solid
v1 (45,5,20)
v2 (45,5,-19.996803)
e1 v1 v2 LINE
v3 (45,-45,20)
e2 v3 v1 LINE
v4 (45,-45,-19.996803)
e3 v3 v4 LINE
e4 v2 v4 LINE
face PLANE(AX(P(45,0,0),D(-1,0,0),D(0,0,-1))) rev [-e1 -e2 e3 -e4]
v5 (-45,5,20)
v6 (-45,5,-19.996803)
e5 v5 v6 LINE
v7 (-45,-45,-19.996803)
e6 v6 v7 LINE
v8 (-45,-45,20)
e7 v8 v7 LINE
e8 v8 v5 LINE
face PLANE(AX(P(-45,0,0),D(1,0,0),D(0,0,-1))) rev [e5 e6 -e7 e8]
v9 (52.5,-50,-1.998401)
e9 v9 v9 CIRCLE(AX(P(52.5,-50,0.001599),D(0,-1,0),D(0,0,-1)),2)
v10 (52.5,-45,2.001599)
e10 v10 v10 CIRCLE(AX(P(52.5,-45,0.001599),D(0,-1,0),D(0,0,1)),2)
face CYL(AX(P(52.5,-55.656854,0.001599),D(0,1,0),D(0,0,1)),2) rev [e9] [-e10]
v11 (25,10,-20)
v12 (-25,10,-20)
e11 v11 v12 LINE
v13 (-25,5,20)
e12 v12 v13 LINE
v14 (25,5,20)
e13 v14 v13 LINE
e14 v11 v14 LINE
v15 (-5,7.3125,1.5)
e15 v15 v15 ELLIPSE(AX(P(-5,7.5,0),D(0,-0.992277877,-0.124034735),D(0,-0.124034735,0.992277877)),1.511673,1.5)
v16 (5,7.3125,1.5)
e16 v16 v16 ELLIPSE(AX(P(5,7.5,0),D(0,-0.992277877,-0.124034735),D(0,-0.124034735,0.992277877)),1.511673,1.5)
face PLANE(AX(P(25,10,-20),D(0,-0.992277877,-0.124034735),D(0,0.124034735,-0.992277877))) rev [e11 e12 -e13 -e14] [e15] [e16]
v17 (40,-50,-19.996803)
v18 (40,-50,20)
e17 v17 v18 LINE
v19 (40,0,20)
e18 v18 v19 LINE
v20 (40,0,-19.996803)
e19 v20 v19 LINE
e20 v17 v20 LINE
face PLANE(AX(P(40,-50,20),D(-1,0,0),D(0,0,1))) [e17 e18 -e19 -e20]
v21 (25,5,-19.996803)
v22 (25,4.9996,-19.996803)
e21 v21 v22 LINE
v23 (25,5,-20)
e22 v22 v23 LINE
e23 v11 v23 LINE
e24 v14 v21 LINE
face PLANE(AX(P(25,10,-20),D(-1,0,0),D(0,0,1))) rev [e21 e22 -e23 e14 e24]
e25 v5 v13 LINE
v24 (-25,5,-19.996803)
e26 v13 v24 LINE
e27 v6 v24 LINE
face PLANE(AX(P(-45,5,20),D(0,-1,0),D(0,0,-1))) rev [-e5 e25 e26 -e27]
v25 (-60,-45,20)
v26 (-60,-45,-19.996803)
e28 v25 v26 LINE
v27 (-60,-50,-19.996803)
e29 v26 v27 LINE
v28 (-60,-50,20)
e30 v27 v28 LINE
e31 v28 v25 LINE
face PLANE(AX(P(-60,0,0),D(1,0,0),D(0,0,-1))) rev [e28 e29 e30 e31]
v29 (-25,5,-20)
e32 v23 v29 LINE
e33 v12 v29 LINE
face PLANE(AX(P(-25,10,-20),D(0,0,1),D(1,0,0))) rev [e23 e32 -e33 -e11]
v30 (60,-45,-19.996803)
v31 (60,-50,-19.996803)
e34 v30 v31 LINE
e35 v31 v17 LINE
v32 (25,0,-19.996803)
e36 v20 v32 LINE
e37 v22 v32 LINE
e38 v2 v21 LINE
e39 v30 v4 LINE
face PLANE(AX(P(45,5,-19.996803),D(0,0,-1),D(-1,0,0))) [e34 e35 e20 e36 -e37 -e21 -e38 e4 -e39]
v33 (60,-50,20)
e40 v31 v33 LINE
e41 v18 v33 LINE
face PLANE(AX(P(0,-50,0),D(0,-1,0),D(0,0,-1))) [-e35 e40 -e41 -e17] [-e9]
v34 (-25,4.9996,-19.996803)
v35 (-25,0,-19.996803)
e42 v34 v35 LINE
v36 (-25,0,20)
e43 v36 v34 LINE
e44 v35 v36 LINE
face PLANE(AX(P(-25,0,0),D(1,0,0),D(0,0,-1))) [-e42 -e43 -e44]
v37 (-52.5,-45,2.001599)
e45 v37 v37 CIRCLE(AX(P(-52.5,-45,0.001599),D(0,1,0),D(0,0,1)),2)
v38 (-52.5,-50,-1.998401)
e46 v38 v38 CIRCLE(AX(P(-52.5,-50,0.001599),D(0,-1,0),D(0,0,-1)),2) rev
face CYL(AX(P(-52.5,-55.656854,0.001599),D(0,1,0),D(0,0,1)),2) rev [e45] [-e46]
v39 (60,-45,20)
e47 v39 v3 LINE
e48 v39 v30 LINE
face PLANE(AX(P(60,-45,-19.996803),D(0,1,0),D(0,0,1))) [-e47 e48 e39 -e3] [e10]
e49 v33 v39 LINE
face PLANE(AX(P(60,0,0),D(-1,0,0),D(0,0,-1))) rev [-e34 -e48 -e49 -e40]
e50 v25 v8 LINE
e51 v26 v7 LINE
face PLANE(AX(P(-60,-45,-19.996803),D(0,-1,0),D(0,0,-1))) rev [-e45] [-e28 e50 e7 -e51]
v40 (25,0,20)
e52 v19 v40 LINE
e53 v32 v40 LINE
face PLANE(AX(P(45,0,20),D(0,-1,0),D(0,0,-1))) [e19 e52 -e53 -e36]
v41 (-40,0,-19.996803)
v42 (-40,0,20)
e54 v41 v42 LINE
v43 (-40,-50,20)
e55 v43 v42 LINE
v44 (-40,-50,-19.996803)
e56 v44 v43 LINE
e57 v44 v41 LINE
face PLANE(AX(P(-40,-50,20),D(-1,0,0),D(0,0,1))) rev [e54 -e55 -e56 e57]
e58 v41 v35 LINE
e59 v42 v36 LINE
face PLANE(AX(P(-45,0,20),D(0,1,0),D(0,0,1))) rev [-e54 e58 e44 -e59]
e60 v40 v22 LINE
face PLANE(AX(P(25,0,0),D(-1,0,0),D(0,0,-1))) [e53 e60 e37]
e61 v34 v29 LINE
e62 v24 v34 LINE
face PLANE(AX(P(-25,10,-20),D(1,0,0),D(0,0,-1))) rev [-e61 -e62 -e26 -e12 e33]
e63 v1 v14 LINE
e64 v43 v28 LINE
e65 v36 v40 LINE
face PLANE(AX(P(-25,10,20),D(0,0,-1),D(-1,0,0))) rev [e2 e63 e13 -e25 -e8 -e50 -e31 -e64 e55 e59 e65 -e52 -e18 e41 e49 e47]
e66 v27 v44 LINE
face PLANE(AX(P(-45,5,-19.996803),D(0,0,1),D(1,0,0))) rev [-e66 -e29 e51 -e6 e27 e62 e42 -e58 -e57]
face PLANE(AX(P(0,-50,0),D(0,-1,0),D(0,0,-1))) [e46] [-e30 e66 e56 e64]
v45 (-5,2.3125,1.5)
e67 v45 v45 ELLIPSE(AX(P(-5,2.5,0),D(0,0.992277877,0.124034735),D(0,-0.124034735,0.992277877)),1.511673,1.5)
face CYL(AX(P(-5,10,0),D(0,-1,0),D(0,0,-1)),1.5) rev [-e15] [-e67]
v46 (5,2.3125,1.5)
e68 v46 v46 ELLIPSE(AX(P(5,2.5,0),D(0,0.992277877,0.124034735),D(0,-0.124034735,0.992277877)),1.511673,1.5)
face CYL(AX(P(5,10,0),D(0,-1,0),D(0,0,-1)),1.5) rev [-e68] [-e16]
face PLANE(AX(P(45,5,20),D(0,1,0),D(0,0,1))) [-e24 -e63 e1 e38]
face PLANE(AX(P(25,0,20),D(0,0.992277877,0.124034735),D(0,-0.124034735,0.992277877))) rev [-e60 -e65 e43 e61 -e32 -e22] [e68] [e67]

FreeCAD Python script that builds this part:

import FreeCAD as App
import Part
import Sketcher
from FreeCAD import Vector


def add_polygon(sketch, points):
    """Adds a closed chain of lines whose ends are joined by coincident constraints."""
    first, n = sketch.GeometryCount, len(points)
    for a, b in zip(points, points[1:] + points[:1]):
        sketch.addGeometry(Part.LineSegment(App.Vector(*a, 0), App.Vector(*b, 0)), False)
    for i in range(n):
        sketch.addConstraint(Sketcher.Constraint("Coincident", first + i, 2, first + (i + 1) % n, 1))

doc = App.newDocument("Part")
body = doc.addObject("PartDesign::Body", "Body")

sketch1 = doc.addObject("Sketcher::SketchObject", "Sketch")
body.addObject(sketch1)
sketch1.AttachmentSupport = (doc.XZ_Plane, [""])
sketch1.MapMode = "FlatFace"
add_polygon(sketch1, [(-25, -20), (-25, 20), (25, 20), (25, -20)])
sketch1.addGeometry(Part.Circle(Vector(-5, 0, 0), Vector(0, 0, 1), 1.5), False)
sketch1.addGeometry(Part.Circle(Vector(5, 0, 0), Vector(0, 0, 1), 1.5), False)
sketch1.addConstraint([
    Sketcher.Constraint("Vertical", 0),
    Sketcher.Constraint("Horizontal", 1),
    Sketcher.Constraint("Vertical", 2),
    Sketcher.Constraint("Horizontal", 3),
    Sketcher.Constraint("Equal", 4, 5),
    Sketcher.Constraint("Symmetric", 4, 3, 5, 3, -1, 1),
    Sketcher.Constraint("Symmetric", 0, 2, 2, 2, -1, 1),
    Sketcher.Constraint("PointOnObject", 4, 3, -1),
    Sketcher.Constraint("Diameter", 4, 3.0),
    Sketcher.Constraint("DistanceX", 1, 1, 1, 2, 50.0),
    Sketcher.Constraint("DistanceY", 0, 1, 0, 2, 40.0),
    Sketcher.Constraint("DistanceX", 4, 3, -1, 1, 5.0),
])
pad1 = doc.addObject("PartDesign::Pad", "Pad")
body.addObject(pad1)
pad1.Profile = sketch1
pad1.Length = 10
pad1.Reversed = True

sketch2 = doc.addObject("Sketcher::SketchObject", "Sketch001")
body.addObject(sketch2)
sketch2.AttachmentSupport = (doc.YZ_Plane, [""])
sketch2.MapMode = "FlatFace"
sketch2.AttachmentOffset = App.Placement(Vector(0, 0, -25), App.Rotation())
add_polygon(sketch2, [(10, -20), (5, 20), (10, 20)])
add_polygon(sketch2, [(0, 20), (5, -20), (0, -20)])
sketch2.addConstraint([
    Sketcher.Constraint("Horizontal", 1),
    Sketcher.Constraint("Vertical", 2),
    Sketcher.Constraint("Horizontal", 4),
    Sketcher.Constraint("Vertical", 5),
    Sketcher.Constraint("Symmetric", 4, 2, 5, 2, -1, 1),
    Sketcher.Constraint("Symmetric", 0, 2, 3, 2, -1),
    Sketcher.Constraint("Parallel", 0, 3),
    Sketcher.Constraint("Horizontal", 2, 2, 3, 2),
    Sketcher.Constraint("DistanceX", 1, 1, 1, 2, 5.0),
    Sketcher.Constraint("DistanceY", 2, 2, 2, 1, 40.0),
])
pocket1 = doc.addObject("PartDesign::Pocket", "Pocket")
body.addObject(pocket1)
pocket1.Profile = sketch2
pocket1.Length = 50
pocket1.Reversed = True

sketch3 = doc.addObject("Sketcher::SketchObject", "Sketch002")
body.addObject(sketch3)
sketch3.AttachmentSupport = (doc.YZ_Plane, [""])
sketch3.MapMode = "FlatFace"
sketch3.AttachmentOffset = App.Placement(Vector(0, 0, -25), App.Rotation())
add_polygon(sketch3, [(5, -20), (0, -20), (0, 20), (5, 20)])
sketch3.addConstraint([
    Sketcher.Constraint("Horizontal", 0),
    Sketcher.Constraint("Vertical", 1),
    Sketcher.Constraint("Horizontal", 2),
    Sketcher.Constraint("Vertical", 3),
    Sketcher.Constraint("PointOnObject", 0, 2, -2),
    Sketcher.Constraint("DistanceX", 0, 2, 0, 1, 5.0),
    Sketcher.Constraint("DistanceY", -1, 1, 1, 2, 20.0),
    Sketcher.Constraint("DistanceY", 1, 1, 1, 2, 39.996803),
])
pad2 = doc.addObject("PartDesign::Pad", "Pad001")
body.addObject(pad2)
pad2.Profile = sketch3
pad2.Length = 20
pad2.Reversed = True

sketch4 = doc.addObject("Sketcher::SketchObject", "Sketch003")
body.addObject(sketch4)
sketch4.AttachmentSupport = (doc.XZ_Plane, [""])
sketch4.MapMode = "FlatFace"
add_polygon(sketch4, [(-45, 20), (-45, -20), (-40, -20), (-40, 20)])
sketch4.addConstraint([
    Sketcher.Constraint("Vertical", 0),
    Sketcher.Constraint("Horizontal", 1),
    Sketcher.Constraint("Vertical", 2),
    Sketcher.Constraint("Horizontal", 3),
    Sketcher.Constraint("DistanceX", 1, 1, 1, 2, 5.0),
    Sketcher.Constraint("DistanceX", 0, 2, -1, 1, 45.0),
    Sketcher.Constraint("DistanceY", -1, 1, 2, 2, 20.0),
    Sketcher.Constraint("DistanceY", 0, 2, 0, 1, 39.996803),
])
pad3 = doc.addObject("PartDesign::Pad", "Pad002")
body.addObject(pad3)
pad3.Profile = sketch4
pad3.Length = 50

sketch5 = doc.addObject("Sketcher::SketchObject", "Sketch004")
body.addObject(sketch5)
sketch5.AttachmentSupport = (doc.YZ_Plane, [""])
sketch5.MapMode = "FlatFace"
sketch5.AttachmentOffset = App.Placement(Vector(0, 0, -45), App.Rotation())
add_polygon(sketch5, [(-45, -20), (-50, -20), (-50, 20), (-45, 20)])
sketch5.addConstraint([
    Sketcher.Constraint("Horizontal", 0),
    Sketcher.Constraint("Vertical", 1),
    Sketcher.Constraint("Horizontal", 2),
    Sketcher.Constraint("Vertical", 3),
    Sketcher.Constraint("DistanceX", 0, 2, 0, 1, 5.0),
    Sketcher.Constraint("DistanceX", 0, 2, -1, 1, 50.0),
    Sketcher.Constraint("DistanceY", -1, 1, 1, 2, 20.0),
    Sketcher.Constraint("DistanceY", 1, 1, 1, 2, 39.996803),
])
pad4 = doc.addObject("PartDesign::Pad", "Pad003")
body.addObject(pad4)
pad4.Profile = sketch5
pad4.Length = 15
pad4.Reversed = True

sketch6 = doc.addObject("Sketcher::SketchObject", "Sketch005")
body.addObject(sketch6)
sketch6.AttachmentSupport = (doc.XZ_Plane, [""])
sketch6.MapMode = "FlatFace"
sketch6.AttachmentOffset = App.Placement(Vector(0, 0, 45), App.Rotation())
sketch6.addGeometry(Part.Circle(Vector(-52.5, 0, 0), Vector(0, 0, 1), 2), False)
sketch6.addConstraint([
    Sketcher.Constraint("Diameter", 0, 4.0),
    Sketcher.Constraint("DistanceX", 0, 3, -1, 1, 52.5),
    Sketcher.Constraint("DistanceY", -1, 1, 0, 3, 0.001599),
])
pocket2 = doc.addObject("PartDesign::Pocket", "Pocket001")
body.addObject(pocket2)
pocket2.Profile = sketch6
pocket2.Length = 5
pocket2.Reversed = True
doc.recompute()

mirrored = doc.addObject("PartDesign::Mirrored", "Mirrored")
body.addObject(mirrored)
mirrored.Originals = [pad2, pad3, pad4, pocket2]
mirrored.MirrorPlane = (doc.YZ_Plane, [""])
body.Tip = mirrored

doc.recompute()
